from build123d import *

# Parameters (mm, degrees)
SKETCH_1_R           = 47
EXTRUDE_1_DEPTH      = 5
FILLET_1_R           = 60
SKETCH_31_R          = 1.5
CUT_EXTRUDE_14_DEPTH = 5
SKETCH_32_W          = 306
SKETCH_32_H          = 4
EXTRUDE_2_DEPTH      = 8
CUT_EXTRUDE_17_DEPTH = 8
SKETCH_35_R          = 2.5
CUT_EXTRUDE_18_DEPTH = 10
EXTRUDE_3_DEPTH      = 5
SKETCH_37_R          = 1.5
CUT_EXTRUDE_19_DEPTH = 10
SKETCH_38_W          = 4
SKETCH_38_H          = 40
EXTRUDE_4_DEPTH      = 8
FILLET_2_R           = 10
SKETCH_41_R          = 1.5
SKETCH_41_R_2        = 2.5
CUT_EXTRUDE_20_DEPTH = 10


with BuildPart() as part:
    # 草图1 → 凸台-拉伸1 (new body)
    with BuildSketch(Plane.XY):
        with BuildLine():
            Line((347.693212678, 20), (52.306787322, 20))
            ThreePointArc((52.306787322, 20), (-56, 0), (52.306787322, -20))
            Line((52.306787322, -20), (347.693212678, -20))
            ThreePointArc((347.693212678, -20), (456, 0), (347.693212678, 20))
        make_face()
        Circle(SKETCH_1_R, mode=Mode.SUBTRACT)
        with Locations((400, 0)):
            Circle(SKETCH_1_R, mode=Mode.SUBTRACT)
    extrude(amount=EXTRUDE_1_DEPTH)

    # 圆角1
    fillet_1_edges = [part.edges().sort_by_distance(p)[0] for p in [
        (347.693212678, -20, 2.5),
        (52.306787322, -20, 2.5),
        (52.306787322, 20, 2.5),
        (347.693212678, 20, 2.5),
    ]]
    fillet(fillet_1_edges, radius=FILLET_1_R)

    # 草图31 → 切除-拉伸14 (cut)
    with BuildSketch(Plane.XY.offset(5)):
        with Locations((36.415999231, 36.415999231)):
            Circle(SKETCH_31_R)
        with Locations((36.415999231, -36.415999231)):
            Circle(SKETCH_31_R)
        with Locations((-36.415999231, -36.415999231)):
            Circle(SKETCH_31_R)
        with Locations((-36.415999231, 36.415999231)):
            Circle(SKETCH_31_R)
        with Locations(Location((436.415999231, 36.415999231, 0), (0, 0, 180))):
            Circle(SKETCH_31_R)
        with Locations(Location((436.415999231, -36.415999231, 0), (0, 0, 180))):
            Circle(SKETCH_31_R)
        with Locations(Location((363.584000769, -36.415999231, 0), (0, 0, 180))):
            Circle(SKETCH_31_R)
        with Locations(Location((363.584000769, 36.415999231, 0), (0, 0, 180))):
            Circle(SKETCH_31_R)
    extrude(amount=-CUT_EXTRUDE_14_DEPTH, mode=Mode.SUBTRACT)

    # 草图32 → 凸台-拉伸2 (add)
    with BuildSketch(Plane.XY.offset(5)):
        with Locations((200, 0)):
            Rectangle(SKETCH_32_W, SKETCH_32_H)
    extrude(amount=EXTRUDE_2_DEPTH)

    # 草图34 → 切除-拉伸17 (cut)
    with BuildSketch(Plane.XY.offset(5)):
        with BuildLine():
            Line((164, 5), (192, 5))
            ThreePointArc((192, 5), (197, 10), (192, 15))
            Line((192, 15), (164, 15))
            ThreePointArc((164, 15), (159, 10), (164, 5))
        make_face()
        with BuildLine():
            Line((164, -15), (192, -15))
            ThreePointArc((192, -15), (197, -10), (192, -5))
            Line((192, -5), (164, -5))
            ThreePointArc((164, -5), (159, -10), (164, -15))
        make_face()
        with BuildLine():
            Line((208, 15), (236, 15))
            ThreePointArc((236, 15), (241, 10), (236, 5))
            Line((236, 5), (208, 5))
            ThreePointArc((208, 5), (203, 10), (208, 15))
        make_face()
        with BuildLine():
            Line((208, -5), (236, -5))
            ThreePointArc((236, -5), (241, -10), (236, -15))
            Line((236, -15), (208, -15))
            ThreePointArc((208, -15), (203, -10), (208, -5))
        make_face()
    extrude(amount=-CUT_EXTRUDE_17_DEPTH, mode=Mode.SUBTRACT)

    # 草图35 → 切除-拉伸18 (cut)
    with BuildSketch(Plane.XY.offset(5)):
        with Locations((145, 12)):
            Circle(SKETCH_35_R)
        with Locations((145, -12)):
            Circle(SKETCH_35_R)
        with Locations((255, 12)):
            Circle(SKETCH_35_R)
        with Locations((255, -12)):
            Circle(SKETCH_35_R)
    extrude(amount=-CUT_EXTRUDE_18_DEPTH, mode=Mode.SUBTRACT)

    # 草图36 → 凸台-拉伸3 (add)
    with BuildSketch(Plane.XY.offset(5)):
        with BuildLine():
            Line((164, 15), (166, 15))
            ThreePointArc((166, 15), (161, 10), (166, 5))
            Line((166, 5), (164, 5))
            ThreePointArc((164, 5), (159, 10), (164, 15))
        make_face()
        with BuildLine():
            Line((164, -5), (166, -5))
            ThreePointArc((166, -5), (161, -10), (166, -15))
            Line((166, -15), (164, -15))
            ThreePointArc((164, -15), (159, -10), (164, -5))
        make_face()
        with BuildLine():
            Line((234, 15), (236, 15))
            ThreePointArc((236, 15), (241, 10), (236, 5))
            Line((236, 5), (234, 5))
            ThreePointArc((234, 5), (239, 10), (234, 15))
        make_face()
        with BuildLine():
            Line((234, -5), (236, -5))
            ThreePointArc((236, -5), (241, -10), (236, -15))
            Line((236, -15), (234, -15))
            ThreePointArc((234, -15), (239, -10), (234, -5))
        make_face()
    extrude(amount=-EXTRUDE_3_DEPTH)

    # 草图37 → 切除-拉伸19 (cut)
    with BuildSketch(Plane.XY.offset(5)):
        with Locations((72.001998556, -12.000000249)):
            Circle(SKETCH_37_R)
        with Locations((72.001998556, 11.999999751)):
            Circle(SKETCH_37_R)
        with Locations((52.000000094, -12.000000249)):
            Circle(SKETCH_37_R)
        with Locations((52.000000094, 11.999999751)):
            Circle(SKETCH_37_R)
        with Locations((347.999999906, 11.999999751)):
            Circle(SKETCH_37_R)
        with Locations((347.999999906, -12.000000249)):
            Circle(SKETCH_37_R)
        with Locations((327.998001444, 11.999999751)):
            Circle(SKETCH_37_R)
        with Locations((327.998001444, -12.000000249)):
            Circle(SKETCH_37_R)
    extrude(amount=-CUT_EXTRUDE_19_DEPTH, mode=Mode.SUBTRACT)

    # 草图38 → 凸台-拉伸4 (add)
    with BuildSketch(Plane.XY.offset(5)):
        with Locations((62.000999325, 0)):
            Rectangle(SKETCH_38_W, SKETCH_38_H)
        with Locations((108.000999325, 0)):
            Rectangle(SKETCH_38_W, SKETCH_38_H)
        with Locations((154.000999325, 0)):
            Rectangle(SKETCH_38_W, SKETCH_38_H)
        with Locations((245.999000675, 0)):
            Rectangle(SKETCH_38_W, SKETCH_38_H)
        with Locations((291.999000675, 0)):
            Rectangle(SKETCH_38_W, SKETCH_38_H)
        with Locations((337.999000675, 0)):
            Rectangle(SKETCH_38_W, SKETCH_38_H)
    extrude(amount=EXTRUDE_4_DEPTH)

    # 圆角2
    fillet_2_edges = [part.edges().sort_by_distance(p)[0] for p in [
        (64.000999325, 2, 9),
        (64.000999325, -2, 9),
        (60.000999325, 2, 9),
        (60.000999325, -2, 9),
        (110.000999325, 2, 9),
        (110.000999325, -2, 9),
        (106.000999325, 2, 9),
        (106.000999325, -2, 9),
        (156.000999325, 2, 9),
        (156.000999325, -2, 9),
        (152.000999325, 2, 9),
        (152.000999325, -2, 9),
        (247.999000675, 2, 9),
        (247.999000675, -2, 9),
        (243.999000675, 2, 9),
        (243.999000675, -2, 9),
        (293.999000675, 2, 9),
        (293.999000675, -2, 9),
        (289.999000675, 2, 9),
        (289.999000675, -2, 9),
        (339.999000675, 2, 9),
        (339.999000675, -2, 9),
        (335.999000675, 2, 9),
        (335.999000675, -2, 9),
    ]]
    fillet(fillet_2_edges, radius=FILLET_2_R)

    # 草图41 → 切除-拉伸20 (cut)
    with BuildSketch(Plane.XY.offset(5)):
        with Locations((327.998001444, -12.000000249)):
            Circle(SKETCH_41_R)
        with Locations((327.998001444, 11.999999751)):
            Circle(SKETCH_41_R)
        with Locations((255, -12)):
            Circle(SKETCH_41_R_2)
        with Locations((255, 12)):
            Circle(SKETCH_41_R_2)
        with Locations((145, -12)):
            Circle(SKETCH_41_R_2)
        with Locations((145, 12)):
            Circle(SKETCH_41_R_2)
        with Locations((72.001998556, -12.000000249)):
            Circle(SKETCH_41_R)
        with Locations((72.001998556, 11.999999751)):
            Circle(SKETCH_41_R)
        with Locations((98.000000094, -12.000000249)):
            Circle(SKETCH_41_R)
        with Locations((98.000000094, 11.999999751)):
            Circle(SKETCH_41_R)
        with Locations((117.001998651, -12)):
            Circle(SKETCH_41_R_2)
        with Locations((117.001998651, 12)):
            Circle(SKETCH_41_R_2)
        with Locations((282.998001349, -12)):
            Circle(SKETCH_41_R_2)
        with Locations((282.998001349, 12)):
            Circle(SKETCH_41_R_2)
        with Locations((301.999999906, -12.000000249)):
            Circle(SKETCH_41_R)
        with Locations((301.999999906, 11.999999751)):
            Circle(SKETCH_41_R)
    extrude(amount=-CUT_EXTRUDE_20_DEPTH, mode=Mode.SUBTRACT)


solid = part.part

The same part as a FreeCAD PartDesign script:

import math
import FreeCAD as App
import Part
import Sketcher
from FreeCAD import Vector
Q = App.Units.Quantity


def edges_at(feature, points):
    """Names of the edges that pass closest to the given points."""
    edges = feature.Shape.Edges
    near = lambda p: min(range(len(edges)), key=lambda i: edges[i].distToShape(Part.Vertex(*p))[0])
    return sorted({f"Edge{near(p) + 1}" for p in points})

doc = App.newDocument("Part")
body = doc.addObject("PartDesign::Body", "Body")

sketch1 = doc.addObject("Sketcher::SketchObject", "Sketch")
body.addObject(sketch1)
sketch1.AttachmentSupport = (doc.XY_Plane, [""])
sketch1.MapMode = "FlatFace"
sketch1.addGeometry(Part.LineSegment(Vector(347.693213, 20, 0), Vector(52.306787, 20, 0)), False)
sketch1.addGeometry(Part.ArcOfCircle(Part.Circle(Vector(0, 0, 0), Vector(0, 0, 1), 56), math.radians(20.924832), math.radians(339.075168)), False)
sketch1.addGeometry(Part.LineSegment(Vector(52.306787, -20, 0), Vector(347.693213, -20, 0)), False)
sketch1.addGeometry(Part.ArcOfCircle(Part.Circle(Vector(400, 0, 0), Vector(0, 0, 1), 56), math.radians(-159.075168), math.radians(159.075168)), False)
sketch1.addGeometry(Part.Circle(Vector(0, 0, 0), Vector(0, 0, 1), 47), False)
sketch1.addGeometry(Part.Circle(Vector(400, 0, 0), Vector(0, 0, 1), 47), False)
sketch1.addConstraint(Sketcher.Constraint("Coincident", 0, 2, 1, 1))
sketch1.addConstraint(Sketcher.Constraint("Coincident", 1, 2, 2, 1))
sketch1.addConstraint(Sketcher.Constraint("Coincident", 2, 2, 3, 1))
sketch1.addConstraint(Sketcher.Constraint("Coincident", 3, 2, 0, 1))
sketch1.addConstraint(Sketcher.Constraint("Horizontal", 0))
sketch1.addConstraint(Sketcher.Constraint("Horizontal", 2))
sketch1.addConstraint(Sketcher.Constraint("Coincident", 1, 3, -1, 1))
sketch1.addConstraint(Sketcher.Constraint("Coincident", 4, 3, -1, 1))
sketch1.addConstraint(Sketcher.Constraint("Coincident", 5, 3, 3, 3))
sketch1.addConstraint(Sketcher.Constraint("Equal", 1, 3))
sketch1.addConstraint(Sketcher.Constraint("Equal", 4, 5))
sketch1.addConstraint(Sketcher.Constraint("Symmetric", 2, 2, 3, 2, -1))
sketch1.addConstraint(Sketcher.Constraint("Diameter", 4, Q("94 mm")))
sketch1.addConstraint(Sketcher.Constraint("Radius", 1, Q("56 mm")))
sketch1.addConstraint(Sketcher.Constraint("DistanceX", -1, 1, 3, 3, Q("400 mm")))
sketch1.addConstraint(Sketcher.Constraint("DistanceY", -1, 1, 0, 2, Q("20 mm")))
pad1 = doc.addObject("PartDesign::Pad", "Pad")
body.addObject(pad1)
pad1.Profile = sketch1
pad1.Length = 5
doc.recompute()

fillet = doc.addObject("PartDesign::Fillet", "Fillet")
body.addObject(fillet)
fillet.Base = (pad1, edges_at(pad1, [
    (347.693, -20, 2.5),
    (52.307, -20, 2.5),
    (52.307, 20, 2.5),
    (347.693, 20, 2.5),
]))
fillet.Radius = 60

sketch2 = doc.addObject("Sketcher::SketchObject", "Sketch001")
body.addObject(sketch2)
sketch2.AttachmentSupport = (doc.XY_Plane, [""])
sketch2.MapMode = "FlatFace"
sketch2.AttachmentOffset = App.Placement(Vector(0, 0, 5), App.Rotation())
sketch2.addGeometry(Part.Circle(Vector(36.415999, 36.415999, 0), Vector(0, 0, 1), 1.5), False)
sketch2.addGeometry(Part.Circle(Vector(36.415999, -36.415999, 0), Vector(0, 0, 1), 1.5), False)
sketch2.addGeometry(Part.Circle(Vector(-36.415999, -36.415999, 0), Vector(0, 0, 1), 1.5), False)
sketch2.addGeometry(Part.Circle(Vector(-36.415999, 36.415999, 0), Vector(0, 0, 1), 1.5), False)
sketch2.addGeometry(Part.Circle(Vector(436.415999, 36.415999, 0), Vector(0, 0, 1), 1.5), False)
sketch2.addGeometry(Part.Circle(Vector(436.415999, -36.415999, 0), Vector(0, 0, 1), 1.5), False)
sketch2.addGeometry(Part.Circle(Vector(363.584001, -36.415999, 0), Vector(0, 0, 1), 1.5), False)
sketch2.addGeometry(Part.Circle(Vector(363.584001, 36.415999, 0), Vector(0, 0, 1), 1.5), False)
sketch2.addConstraint(Sketcher.Constraint("Equal", 0, 1))
sketch2.addConstraint(Sketcher.Constraint("Equal", 1, 2))
sketch2.addConstraint(Sketcher.Constraint("Equal", 2, 3))
sketch2.addConstraint(Sketcher.Constraint("Equal", 3, 4))
sketch2.addConstraint(Sketcher.Constraint("Equal", 4, 5))
sketch2.addConstraint(Sketcher.Constraint("Equal", 5, 6))
sketch2.addConstraint(Sketcher.Constraint("Equal", 6, 7))
sketch2.addConstraint(Sketcher.Constraint("Symmetric", 0, 3, 2, 3, -1, 1))
sketch2.addConstraint(Sketcher.Constraint("Symmetric", 1, 3, 3, 3, -1, 1))
sketch2.addConstraint(Sketcher.Constraint("Symmetric", 1, 3, 2, 3, -2))
sketch2.addConstraint(Sketcher.Constraint("Symmetric", 4, 3, 5, 3, -1))
sketch2.addConstraint(Sketcher.Constraint("Symmetric", 6, 3, 7, 3, -1))
sketch2.addConstraint(Sketcher.Constraint("Horizontal", 3, 3, 4, 3))
sketch2.addConstraint(Sketcher.Constraint("Horizontal", 5, 3, 6, 3))
sketch2.addConstraint(Sketcher.Constraint("Diameter", 0, Q("3 mm")))
sketch2.addConstraint(Sketcher.Constraint("DistanceX", 0, 3, 4, 3, Q("400 mm")))
sketch2.addConstraint(Sketcher.Constraint("DistanceX", 2, 3, 6, 3, Q("400 mm")))
sketch2.addConstraint(Sketcher.Constraint("DistanceX", -1, 1, 0, 3, Q("36.415999 mm")))
sketch2.addConstraint(Sketcher.Constraint("DistanceY", -1, 1, 0, 3, Q("36.415999 mm")))
pocket1 = doc.addObject("PartDesign::Pocket", "Pocket")
body.addObject(pocket1)
pocket1.Profile = sketch2
pocket1.Length = 5

sketch3 = doc.addObject("Sketcher::SketchObject", "Sketch002")
body.addObject(sketch3)
sketch3.AttachmentSupport = (doc.XY_Plane, [""])
sketch3.MapMode = "FlatFace"
sketch3.AttachmentOffset = App.Placement(Vector(0, 0, 5), App.Rotation())
sketch3.addGeometry(Part.LineSegment(Vector(47, 2, 0), Vector(47, -2, 0)), False)
sketch3.addGeometry(Part.LineSegment(Vector(47, -2, 0), Vector(353, -2, 0)), False)
sketch3.addGeometry(Part.LineSegment(Vector(353, -2, 0), Vector(353, 2, 0)), False)
sketch3.addGeometry(Part.LineSegment(Vector(353, 2, 0), Vector(47, 2, 0)), False)
sketch3.addConstraint(Sketcher.Constraint("Coincident", 0, 2, 1, 1))
sketch3.addConstraint(Sketcher.Constraint("Coincident", 1, 2, 2, 1))
sketch3.addConstraint(Sketcher.Constraint("Coincident", 2, 2, 3, 1))
sketch3.addConstraint(Sketcher.Constraint("Coincident", 3, 2, 0, 1))
sketch3.addConstraint(Sketcher.Constraint("Vertical", 0))
sketch3.addConstraint(Sketcher.Constraint("Horizontal", 1))
sketch3.addConstraint(Sketcher.Constraint("Vertical", 2))
sketch3.addConstraint(Sketcher.Constraint("Horizontal", 3))
sketch3.addConstraint(Sketcher.Constraint("DistanceX", 1, 1, 1, 2, Q("306 mm")))
sketch3.addConstraint(Sketcher.Constraint("DistanceY", 0, 2, 0, 1, Q("4 mm")))
sketch3.addConstraint(Sketcher.Constraint("DistanceX", -1, 1, 0, 2, Q("47 mm")))
sketch3.addConstraint(Sketcher.Constraint("DistanceY", 0, 2, -1, 1, Q("2 mm")))
pad2 = doc.addObject("PartDesign::Pad", "Pad001")
body.addObject(pad2)
pad2.Profile = sketch3
pad2.Length = 8

sketch4 = doc.addObject("Sketcher::SketchObject", "Sketch003")
body.addObject(sketch4)
sketch4.AttachmentSupport = (doc.XY_Plane, [""])
sketch4.MapMode = "FlatFace"
sketch4.AttachmentOffset = App.Placement(Vector(0, 0, 5), App.Rotation())
sketch4.addGeometry(Part.LineSegment(Vector(164, 5, 0), Vector(192, 5, 0)), False)
sketch4.addGeometry(Part.ArcOfCircle(Part.Circle(Vector(192, 10, 0), Vector(0, 0, 1), 5), math.radians(-90), math.radians(90)), False)
sketch4.addGeometry(Part.LineSegment(Vector(192, 15, 0), Vector(164, 15, 0)), False)
sketch4.addGeometry(Part.ArcOfCircle(Part.Circle(Vector(164, 10, 0), Vector(0, 0, 1), 5), math.radians(90), math.radians(270)), False)
sketch4.addGeometry(Part.LineSegment(Vector(164, -15, 0), Vector(192, -15, 0)), False)
sketch4.addGeometry(Part.ArcOfCircle(Part.Circle(Vector(192, -10, 0), Vector(0, 0, 1), 5), math.radians(-90), math.radians(90)), False)
sketch4.addGeometry(Part.LineSegment(Vector(192, -5, 0), Vector(164, -5, 0)), False)
sketch4.addGeometry(Part.ArcOfCircle(Part.Circle(Vector(164, -10, 0), Vector(0, 0, 1), 5), math.radians(90), math.radians(270)), False)
sketch4.addGeometry(Part.LineSegment(Vector(236, 15, 0), Vector(208, 15, 0)), False)
sketch4.addGeometry(Part.ArcOfCircle(Part.Circle(Vector(208, 10, 0), Vector(0, 0, 1), 5), math.radians(90), math.radians(270)), False)
sketch4.addGeometry(Part.LineSegment(Vector(208, 5, 0), Vector(236, 5, 0)), False)
sketch4.addGeometry(Part.ArcOfCircle(Part.Circle(Vector(236, 10, 0), Vector(0, 0, 1), 5), math.radians(-90), math.radians(90)), False)
sketch4.addGeometry(Part.LineSegment(Vector(236, -5, 0), Vector(208, -5, 0)), False)
sketch4.addGeometry(Part.ArcOfCircle(Part.Circle(Vector(208, -10, 0), Vector(0, 0, 1), 5), math.radians(90), math.radians(270)), False)
sketch4.addGeometry(Part.LineSegment(Vector(208, -15, 0), Vector(236, -15, 0)), False)
sketch4.addGeometry(Part.ArcOfCircle(Part.Circle(Vector(236, -10, 0), Vector(0, 0, 1), 5), math.radians(-90), math.radians(90)), False)
sketch4.addConstraint(Sketcher.Constraint("Tangent", 0, 2, 1, 1))
sketch4.addConstraint(Sketcher.Constraint("Tangent", 1, 2, 2, 1))
sketch4.addConstraint(Sketcher.Constraint("Tangent", 2, 2, 3, 1))
sketch4.addConstraint(Sketcher.Constraint("Tangent", 3, 2, 0, 1))
sketch4.addConstraint(Sketcher.Constraint("Tangent", 4, 2, 5, 1))
sketch4.addConstraint(Sketcher.Constraint("Tangent", 5, 2, 6, 1))
sketch4.addConstraint(Sketcher.Constraint("Tangent", 6, 2, 7, 1))
sketch4.addConstraint(Sketcher.Constraint("Tangent", 7, 2, 4, 1))
sketch4.addConstraint(Sketcher.Constraint("Tangent", 8, 2, 9, 1))
sketch4.addConstraint(Sketcher.Constraint("Tangent", 9, 2, 10, 1))
sketch4.addConstraint(Sketcher.Constraint("Tangent", 10, 2, 11, 1))
sketch4.addConstraint(Sketcher.Constraint("Tangent", 11, 2, 8, 1))
sketch4.addConstraint(Sketcher.Constraint("Tangent", 12, 2, 13, 1))
sketch4.addConstraint(Sketcher.Constraint("Tangent", 13, 2, 14, 1))
sketch4.addConstraint(Sketcher.Constraint("Tangent", 14, 2, 15, 1))
sketch4.addConstraint(Sketcher.Constraint("Tangent", 15, 2, 12, 1))
sketch4.addConstraint(Sketcher.Constraint("Horizontal", 0))
sketch4.addConstraint(Sketcher.Constraint("Horizontal", 2))
sketch4.addConstraint(Sketcher.Constraint("Horizontal", 4))
sketch4.addConstraint(Sketcher.Constraint("Horizontal", 6))
sketch4.addConstraint(Sketcher.Constraint("Horizontal", 8))
sketch4.addConstraint(Sketcher.Constraint("Horizontal", 10))
sketch4.addConstraint(Sketcher.Constraint("Horizontal", 12))
sketch4.addConstraint(Sketcher.Constraint("Horizontal", 14))
sketch4.addConstraint(Sketcher.Constraint("Equal", 3, 5))
sketch4.addConstraint(Sketcher.Constraint("Equal", 7, 9))
sketch4.addConstraint(Sketcher.Constraint("Equal", 11, 13))
sketch4.addConstraint(Sketcher.Constraint("Symmetric", 1, 3, 5, 3, -1))
sketch4.addConstraint(Sketcher.Constraint("Symmetric", 9, 3, 13, 3, -1))
sketch4.addConstraint(Sketcher.Constraint("Horizontal", 3, 3, 9, 3))
sketch4.addConstraint(Sketcher.Constraint("Vertical", 3, 3, 7, 3))
sketch4.addConstraint(Sketcher.Constraint("Vertical", 11, 3, 15, 3))
sketch4.addConstraint(Sketcher.Constraint("Equal", 6, 8))
sketch4.addConstraint(Sketcher.Constraint("Radius", 1, Q("5 mm")))
sketch4.addConstraint(Sketcher.Constraint("DistanceX", 0, 1, 0, 2, Q("28 mm")))
sketch4.addConstraint(Sketcher.Constraint("DistanceX", -1, 1, 1, 3, Q("192 mm")))
sketch4.addConstraint(Sketcher.Constraint("DistanceY", -1, 1, 1, 3, Q("10 mm")))
sketch4.addConstraint(Sketcher.Constraint("DistanceX", -1, 1, 9, 3, Q("208 mm")))
pocket2 = doc.addObject("PartDesign::Pocket", "Pocket001")
body.addObject(pocket2)
pocket2.Profile = sketch4
pocket2.Length = 8

sketch5 = doc.addObject("Sketcher::SketchObject", "Sketch004")
body.addObject(sketch5)
sketch5.AttachmentSupport = (doc.XY_Plane, [""])
sketch5.MapMode = "FlatFace"
sketch5.AttachmentOffset = App.Placement(Vector(0, 0, 5), App.Rotation())
sketch5.addGeometry(Part.Circle(Vector(145, 12, 0), Vector(0, 0, 1), 2.5), False)
sketch5.addGeometry(Part.Circle(Vector(145, -12, 0), Vector(0, 0, 1), 2.5), False)
sketch5.addGeometry(Part.Circle(Vector(255, 12, 0), Vector(0, 0, 1), 2.5), False)
sketch5.addGeometry(Part.Circle(Vector(255, -12, 0), Vector(0, 0, 1), 2.5), False)
sketch5.addConstraint(Sketcher.Constraint("Equal", 0, 1))
sketch5.addConstraint(Sketcher.Constraint("Equal", 1, 2))
sketch5.addConstraint(Sketcher.Constraint("Equal", 2, 3))
sketch5.addConstraint(Sketcher.Constraint("Symmetric", 0, 3, 1, 3, -1))
sketch5.addConstraint(Sketcher.Constraint("Symmetric", 2, 3, 3, 3, -1))
sketch5.addConstraint(Sketcher.Constraint("Horizontal", 0, 3, 2, 3))
sketch5.addConstraint(Sketcher.Constraint("Diameter", 0, Q("5 mm")))
sketch5.addConstraint(Sketcher.Constraint("DistanceX", -1, 1, 0, 3, Q("145 mm")))
sketch5.addConstraint(Sketcher.Constraint("DistanceY", -1, 1, 0, 3, Q("12 mm")))
sketch5.addConstraint(Sketcher.Constraint("DistanceX", -1, 1, 2, 3, Q("255 mm")))
pocket3 = doc.addObject("PartDesign::Pocket", "Pocket002")
body.addObject(pocket3)
pocket3.Profile = sketch5
pocket3.Length = 10

sketch6 = doc.addObject("Sketcher::SketchObject", "Sketch005")
body.addObject(sketch6)
sketch6.AttachmentSupport = (doc.XY_Plane, [""])
sketch6.MapMode = "FlatFace"
sketch6.AttachmentOffset = App.Placement(Vector(0, 0, 5), App.Rotation())
sketch6.addGeometry(Part.LineSegment(Vector(166, 15, 0), Vector(164, 15, 0)), False)
sketch6.addGeometry(Part.ArcOfCircle(Part.Circle(Vector(164, 10, 0), Vector(0, 0, 1), 5), math.radians(90), math.radians(270)), False)
sketch6.addGeometry(Part.LineSegment(Vector(164, 5, 0), Vector(166, 5, 0)), False)
sketch6.addGeometry(Part.ArcOfCircle(Part.Circle(Vector(166, 10, 0), Vector(0, 0, 1), 5), math.radians(90), math.radians(270)), False)
sketch6.addGeometry(Part.LineSegment(Vector(166, -5, 0), Vector(164, -5, 0)), False)
sketch6.addGeometry(Part.ArcOfCircle(Part.Circle(Vector(164, -10, 0), Vector(0, 0, 1), 5), math.radians(90), math.radians(270)), False)
sketch6.addGeometry(Part.LineSegment(Vector(164, -15, 0), Vector(166, -15, 0)), False)
sketch6.addGeometry(Part.ArcOfCircle(Part.Circle(Vector(166, -10, 0), Vector(0, 0, 1), 5), math.radians(90), math.radians(270)), False)
sketch6.addGeometry(Part.LineSegment(Vector(236, 15, 0), Vector(234, 15, 0)), False)
sketch6.addGeometry(Part.ArcOfCircle(Part.Circle(Vector(234, 10, 0), Vector(0, 0, 1), 5), math.radians(-90), math.radians(90)), False)
sketch6.addGeometry(Part.LineSegment(Vector(234, 5, 0), Vector(236, 5, 0)), False)
sketch6.addGeometry(Part.ArcOfCircle(Part.Circle(Vector(236, 10, 0), Vector(0, 0, 1), 5), math.radians(-90), math.radians(90)), False)
sketch6.addGeometry(Part.LineSegment(Vector(236, -5, 0), Vector(234, -5, 0)), False)
sketch6.addGeometry(Part.ArcOfCircle(Part.Circle(Vector(234, -10, 0), Vector(0, 0, 1), 5), math.radians(-90), math.radians(90)), False)
sketch6.addGeometry(Part.LineSegment(Vector(234, -15, 0), Vector(236, -15, 0)), False)
sketch6.addGeometry(Part.ArcOfCircle(Part.Circle(Vector(236, -10, 0), Vector(0, 0, 1), 5), math.radians(-90), math.radians(90)), False)
sketch6.addConstraint(Sketcher.Constraint("Tangent", 0, 2, 1, 1))
sketch6.addConstraint(Sketcher.Constraint("Tangent", 1, 2, 2, 1))
sketch6.addConstraint(Sketcher.Constraint("Tangent", 2, 2, 3, 2))
sketch6.addConstraint(Sketcher.Constraint("Tangent", 3, 1, 0, 1))
sketch6.addConstraint(Sketcher.Constraint("Tangent", 4, 2, 5, 1))
sketch6.addConstraint(Sketcher.Constraint("Tangent", 5, 2, 6, 1))
sketch6.addConstraint(Sketcher.Constraint("Tangent", 6, 2, 7, 2))
sketch6.addConstraint(Sketcher.Constraint("Tangent", 7, 1, 4, 1))
sketch6.addConstraint(Sketcher.Constraint("Tangent", 8, 2, 9, 2))
sketch6.addConstraint(Sketcher.Constraint("Tangent", 9, 1, 10, 1))
sketch6.addConstraint(Sketcher.Constraint("Tangent", 10, 2, 11, 1))
sketch6.addConstraint(Sketcher.Constraint("Tangent", 11, 2, 8, 1))
sketch6.addConstraint(Sketcher.Constraint("Tangent", 12, 2, 13, 2))
sketch6.addConstraint(Sketcher.Constraint("Tangent", 13, 1, 14, 1))
sketch6.addConstraint(Sketcher.Constraint("Tangent", 14, 2, 15, 1))
sketch6.addConstraint(Sketcher.Constraint("Tangent", 15, 2, 12, 1))
sketch6.addConstraint(Sketcher.Constraint("Horizontal", 0))
sketch6.addConstraint(Sketcher.Constraint("Horizontal", 2))
sketch6.addConstraint(Sketcher.Constraint("Horizontal", 4))
sketch6.addConstraint(Sketcher.Constraint("Horizontal", 6))
sketch6.addConstraint(Sketcher.Constraint("Horizontal", 8))
sketch6.addConstraint(Sketcher.Constraint("Horizontal", 10))
sketch6.addConstraint(Sketcher.Constraint("Horizontal", 12))
sketch6.addConstraint(Sketcher.Constraint("Horizontal", 14))
sketch6.addConstraint(Sketcher.Constraint("Equal", 3, 5))
sketch6.addConstraint(Sketcher.Constraint("Equal", 7, 9))
sketch6.addConstraint(Sketcher.Constraint("Equal", 11, 13))
sketch6.addConstraint(Sketcher.Constraint("Symmetric", 1, 3, 5, 3, -1))
sketch6.addConstraint(Sketcher.Constraint("Symmetric", 9, 3, 13, 3, -1))
sketch6.addConstraint(Sketcher.Constraint("Horizontal", 3, 3, 9, 3))
sketch6.addConstraint(Sketcher.Constraint("Vertical", 3, 3, 7, 3))
sketch6.addConstraint(Sketcher.Constraint("Vertical", 11, 3, 15, 3))
sketch6.addConstraint(Sketcher.Constraint("Equal", 6, 8))
sketch6.addConstraint(Sketcher.Constraint("Radius", 1, Q("5 mm")))
sketch6.addConstraint(Sketcher.Constraint("DistanceX", 0, 2, 0, 1, Q("2 mm")))
sketch6.addConstraint(Sketcher.Constraint("DistanceX", -1, 1, 1, 3, Q("164 mm")))
sketch6.addConstraint(Sketcher.Constraint("DistanceY", -1, 1, 1, 3, Q("10 mm")))
sketch6.addConstraint(Sketcher.Constraint("DistanceX", -1, 1, 9, 3, Q("234 mm")))
pad3 = doc.addObject("PartDesign::Pad", "Pad002")
body.addObject(pad3)
pad3.Profile = sketch6
pad3.Length = 5
pad3.Reversed = True

sketch7 = doc.addObject("Sketcher::SketchObject", "Sketch006")
body.addObject(sketch7)
sketch7.AttachmentSupport = (doc.XY_Plane, [""])
sketch7.MapMode = "FlatFace"
sketch7.AttachmentOffset = App.Placement(Vector(0, 0, 5), App.Rotation())
sketch7.addGeometry(Part.Circle(Vector(72.001999, -12, 0), Vector(0, 0, 1), 1.5), False)
sketch7.addGeometry(Part.Circle(Vector(72.001999, 12, 0), Vector(0, 0, 1), 1.5), False)
sketch7.addGeometry(Part.Circle(Vector(52, -12, 0), Vector(0, 0, 1), 1.5), False)
sketch7.addGeometry(Part.Circle(Vector(52, 12, 0), Vector(0, 0, 1), 1.5), False)
sketch7.addGeometry(Part.Circle(Vector(348, 12, 0), Vector(0, 0, 1), 1.5), False)
sketch7.addGeometry(Part.Circle(Vector(348, -12, 0), Vector(0, 0, 1), 1.5), False)
sketch7.addGeometry(Part.Circle(Vector(327.998001, 12, 0), Vector(0, 0, 1), 1.5), False)
sketch7.addGeometry(Part.Circle(Vector(327.998001, -12, 0), Vector(0, 0, 1), 1.5), False)
sketch7.addConstraint(Sketcher.Constraint("Equal", 0, 1))
sketch7.addConstraint(Sketcher.Constraint("Equal", 1, 2))
sketch7.addConstraint(Sketcher.Constraint("Equal", 2, 3))
sketch7.addConstraint(Sketcher.Constraint("Equal", 3, 4))
sketch7.addConstraint(Sketcher.Constraint("Equal", 4, 5))
sketch7.addConstraint(Sketcher.Constraint("Equal", 5, 6))
sketch7.addConstraint(Sketcher.Constraint("Equal", 6, 7))
sketch7.addConstraint(Sketcher.Constraint("Symmetric", 0, 3, 1, 3, -1))
sketch7.addConstraint(Sketcher.Constraint("Symmetric", 2, 3, 3, 3, -1))
sketch7.addConstraint(Sketcher.Constraint("Symmetric", 4, 3, 5, 3, -1))
sketch7.addConstraint(Sketcher.Constraint("Symmetric", 6, 3, 7, 3, -1))
sketch7.addConstraint(Sketcher.Constraint("Horizontal", 0, 3, 2, 3))
sketch7.addConstraint(Sketcher.Constraint("Horizontal", 3, 3, 4, 3))
sketch7.addConstraint(Sketcher.Constraint("Horizontal", 4, 3, 6, 3))
sketch7.addConstraint(Sketcher.Constraint("Diameter", 0, Q("3 mm")))
sketch7.addConstraint(Sketcher.Constraint("DistanceY", 0, 3, -1, 1, Q("12 mm")))
sketch7.addConstraint(Sketcher.Constraint("DistanceX", -1, 1, 2, 3, Q("52 mm")))
sketch7.addConstraint(Sketcher.Constraint("DistanceX", -1, 1, 4, 3, Q("348 mm")))
sketch7.addConstraint(Sketcher.Constraint("DistanceX", -1, 1, 0, 3, Q("72.001999 mm")))
sketch7.addConstraint(Sketcher.Constraint("DistanceX", -1, 1, 6, 3, Q("327.998001 mm")))
pocket4 = doc.addObject("PartDesign::Pocket", "Pocket003")
body.addObject(pocket4)
pocket4.Profile = sketch7
pocket4.Length = 10

sketch8 = doc.addObject("Sketcher::SketchObject", "Sketch007")
body.addObject(sketch8)
sketch8.AttachmentSupport = (doc.XY_Plane, [""])
sketch8.MapMode = "FlatFace"
sketch8.AttachmentOffset = App.Placement(Vector(0, 0, 5), App.Rotation())
sketch8.addGeometry(Part.LineSegment(Vector(60.000999, 20, 0), Vector(60.000999, -20, 0)), False)
sketch8.addGeometry(Part.LineSegment(Vector(60.000999, -20, 0), Vector(64.000999, -20, 0)), False)
sketch8.addGeometry(Part.LineSegment(Vector(64.000999, -20, 0), Vector(64.000999, 20, 0)), False)
sketch8.addGeometry(Part.LineSegment(Vector(64.000999, 20, 0), Vector(60.000999, 20, 0)), False)
sketch8.addGeometry(Part.LineSegment(Vector(106.000999, 20, 0), Vector(106.000999, -20, 0)), False)
sketch8.addGeometry(Part.LineSegment(Vector(106.000999, -20, 0), Vector(110.000999, -20, 0)), False)
sketch8.addGeometry(Part.LineSegment(Vector(110.000999, -20, 0), Vector(110.000999, 20, 0)), False)
sketch8.addGeometry(Part.LineSegment(Vector(110.000999, 20, 0), Vector(106.000999, 20, 0)), False)
sketch8.addGeometry(Part.LineSegment(Vector(152.000999, 20, 0), Vector(152.000999, -20, 0)), False)
sketch8.addGeometry(Part.LineSegment(Vector(152.000999, -20, 0), Vector(156.000999, -20, 0)), False)
sketch8.addGeometry(Part.LineSegment(Vector(156.000999, -20, 0), Vector(156.000999, 20, 0)), False)
sketch8.addGeometry(Part.LineSegment(Vector(156.000999, 20, 0), Vector(152.000999, 20, 0)), False)
sketch8.addGeometry(Part.LineSegment(Vector(243.999001, 20, 0), Vector(243.999001, -20, 0)), False)
sketch8.addGeometry(Part.LineSegment(Vector(243.999001, -20, 0), Vector(247.999001, -20, 0)), False)
sketch8.addGeometry(Part.LineSegment(Vector(247.999001, -20, 0), Vector(247.999001, 20, 0)), False)
sketch8.addGeometry(Part.LineSegment(Vector(247.999001, 20, 0), Vector(243.999001, 20, 0)), False)
sketch8.addGeometry(Part.LineSegment(Vector(289.999001, 20, 0), Vector(289.999001, -20, 0)), False)
sketch8.addGeometry(Part.LineSegment(Vector(289.999001, -20, 0), Vector(293.999001, -20, 0)), False)
sketch8.addGeometry(Part.LineSegment(Vector(293.999001, -20, 0), Vector(293.999001, 20, 0)), False)
sketch8.addGeometry(Part.LineSegment(Vector(293.999001, 20, 0), Vector(289.999001, 20, 0)), False)
sketch8.addGeometry(Part.LineSegment(Vector(335.999001, 20, 0), Vector(335.999001, -20, 0)), False)
sketch8.addGeometry(Part.LineSegment(Vector(335.999001, -20, 0), Vector(339.999001, -20, 0)), False)
sketch8.addGeometry(Part.LineSegment(Vector(339.999001, -20, 0), Vector(339.999001, 20, 0)), False)
sketch8.addGeometry(Part.LineSegment(Vector(339.999001, 20, 0), Vector(335.999001, 20, 0)), False)
sketch8.addConstraint(Sketcher.Constraint("Coincident", 0, 2, 1, 1))
sketch8.addConstraint(Sketcher.Constraint("Coincident", 1, 2, 2, 1))
sketch8.addConstraint(Sketcher.Constraint("Coincident", 2, 2, 3, 1))
sketch8.addConstraint(Sketcher.Constraint("Coincident", 3, 2, 0, 1))
sketch8.addConstraint(Sketcher.Constraint("Coincident", 4, 2, 5, 1))
sketch8.addConstraint(Sketcher.Constraint("Coincident", 5, 2, 6, 1))
sketch8.addConstraint(Sketcher.Constraint("Coincident", 6, 2, 7, 1))
sketch8.addConstraint(Sketcher.Constraint("Coincident", 7, 2, 4, 1))
sketch8.addConstraint(Sketcher.Constraint("Coincident", 8, 2, 9, 1))
sketch8.addConstraint(Sketcher.Constraint("Coincident", 9, 2, 10, 1))
sketch8.addConstraint(Sketcher.Constraint("Coincident", 10, 2, 11, 1))
sketch8.addConstraint(Sketcher.Constraint("Coincident", 11, 2, 8, 1))
sketch8.addConstraint(Sketcher.Constraint("Coincident", 12, 2, 13, 1))
sketch8.addConstraint(Sketcher.Constraint("Coincident", 13, 2, 14, 1))
sketch8.addConstraint(Sketcher.Constraint("Coincident", 14, 2, 15, 1))
sketch8.addConstraint(Sketcher.Constraint("Coincident", 15, 2, 12, 1))
sketch8.addConstraint(Sketcher.Constraint("Coincident", 16, 2, 17, 1))
sketch8.addConstraint(Sketcher.Constraint("Coincident", 17, 2, 18, 1))
sketch8.addConstraint(Sketcher.Constraint("Coincident", 18, 2, 19, 1))
sketch8.addConstraint(Sketcher.Constraint("Coincident", 19, 2, 16, 1))
sketch8.addConstraint(Sketcher.Constraint("Coincident", 20, 2, 21, 1))
sketch8.addConstraint(Sketcher.Constraint("Coincident", 21, 2, 22, 1))
sketch8.addConstraint(Sketcher.Constraint("Coincident", 22, 2, 23, 1))
sketch8.addConstraint(Sketcher.Constraint("Coincident", 23, 2, 20, 1))
sketch8.addConstraint(Sketcher.Constraint("Vertical", 0))
sketch8.addConstraint(Sketcher.Constraint("Horizontal", 1))
sketch8.addConstraint(Sketcher.Constraint("Vertical", 2))
sketch8.addConstraint(Sketcher.Constraint("Horizontal", 3))
sketch8.addConstraint(Sketcher.Constraint("Vertical", 4))
sketch8.addConstraint(Sketcher.Constraint("Horizontal", 5))
sketch8.addConstraint(Sketcher.Constraint("Vertical", 6))
sketch8.addConstraint(Sketcher.Constraint("Horizontal", 7))
sketch8.addConstraint(Sketcher.Constraint("Vertical", 8))
sketch8.addConstraint(Sketcher.Constraint("Horizontal", 9))
sketch8.addConstraint(Sketcher.Constraint("Vertical", 10))
sketch8.addConstraint(Sketcher.Constraint("Horizontal", 11))
sketch8.addConstraint(Sketcher.Constraint("Vertical", 12))
sketch8.addConstraint(Sketcher.Constraint("Horizontal", 13))
sketch8.addConstraint(Sketcher.Constraint("Vertical", 14))
sketch8.addConstraint(Sketcher.Constraint("Horizontal", 15))
sketch8.addConstraint(Sketcher.Constraint("Vertical", 16))
sketch8.addConstraint(Sketcher.Constraint("Horizontal", 17))
sketch8.addConstraint(Sketcher.Constraint("Vertical", 18))
sketch8.addConstraint(Sketcher.Constraint("Horizontal", 19))
sketch8.addConstraint(Sketcher.Constraint("Vertical", 20))
sketch8.addConstraint(Sketcher.Constraint("Horizontal", 21))
sketch8.addConstraint(Sketcher.Constraint("Vertical", 22))
sketch8.addConstraint(Sketcher.Constraint("Horizontal", 23))
sketch8.addConstraint(Sketcher.Constraint("Horizontal", 1, 2, 4, 2))
sketch8.addConstraint(Sketcher.Constraint("Horizontal", 3, 2, 6, 2))
sketch8.addConstraint(Sketcher.Constraint("Horizontal", 5, 2, 8, 2))
sketch8.addConstraint(Sketcher.Constraint("Horizontal", 7, 2, 10, 2))
sketch8.addConstraint(Sketcher.Constraint("Horizontal", 9, 2, 12, 2))
sketch8.addConstraint(Sketcher.Constraint("Horizontal", 11, 2, 14, 2))
sketch8.addConstraint(Sketcher.Constraint("Horizontal", 13, 2, 16, 2))
sketch8.addConstraint(Sketcher.Constraint("Horizontal", 15, 2, 18, 2))
sketch8.addConstraint(Sketcher.Constraint("Horizontal", 17, 2, 20, 2))
sketch8.addConstraint(Sketcher.Constraint("Horizontal", 19, 2, 22, 2))
sketch8.addConstraint(Sketcher.Constraint("Equal", 3, 5))
sketch8.addConstraint(Sketcher.Constraint("Equal", 7, 9))
sketch8.addConstraint(Sketcher.Constraint("Equal", 11, 13))
sketch8.addConstraint(Sketcher.Constraint("Equal", 15, 17))
sketch8.addConstraint(Sketcher.Constraint("Equal", 19, 21))
sketch8.addConstraint(Sketcher.Constraint("DistanceX", 1, 1, 1, 2, Q("4 mm")))
sketch8.addConstraint(Sketcher.Constraint("DistanceY", 0, 2, 0, 1, Q("40 mm")))
sketch8.addConstraint(Sketcher.Constraint("DistanceY", 0, 2, -1, 1, Q("20 mm")))
sketch8.addConstraint(Sketcher.Constraint("DistanceX", 1, 2, 4, 2, Q("42 mm")))
sketch8.addConstraint(Sketcher.Constraint("DistanceX", 5, 2, 8, 2, Q("42 mm")))
sketch8.addConstraint(Sketcher.Constraint("DistanceX", 13, 2, 16, 2, Q("42 mm")))
sketch8.addConstraint(Sketcher.Constraint("DistanceX", 17, 2, 20, 2, Q("42 mm")))
sketch8.addConstraint(Sketcher.Constraint("DistanceX", -1, 1, 0, 2, Q("60.000999 mm")))
sketch8.addConstraint(Sketcher.Constraint("DistanceX", -1, 1, 12, 2, Q("243.999001 mm")))
pad4 = doc.addObject("PartDesign::Pad", "Pad003")
body.addObject(pad4)
pad4.Profile = sketch8
pad4.Length = 8
doc.recompute()

fillet2 = doc.addObject("PartDesign::Fillet", "Fillet001")
body.addObject(fillet2)
fillet2.Base = (pad4, edges_at(pad4, [
    (64.001, 2, 9),
    (64.001, -2, 9),
    (60.001, 2, 9),
    (60.001, -2, 9),
    (110.001, 2, 9),
    (110.001, -2, 9),
    (106.001, 2, 9),
    (106.001, -2, 9),
    (156.001, 2, 9),
    (156.001, -2, 9),
    (152.001, 2, 9),
    (152.001, -2, 9),
    (247.999, 2, 9),
    (247.999, -2, 9),
    (243.999, 2, 9),
    (243.999, -2, 9),
    (293.999, 2, 9),
    (293.999, -2, 9),
    (289.999, 2, 9),
    (289.999, -2, 9),
    (339.999, 2, 9),
    (339.999, -2, 9),
    (335.999, 2, 9),
    (335.999, -2, 9),
]))
fillet2.Radius = 10

sketch9 = doc.addObject("Sketcher::SketchObject", "Sketch008")
body.addObject(sketch9)
sketch9.AttachmentSupport = (doc.XY_Plane, [""])
sketch9.MapMode = "FlatFace"
sketch9.AttachmentOffset = App.Placement(Vector(0, 0, 5), App.Rotation())
sketch9.addGeometry(Part.Circle(Vector(327.998001, -12, 0), Vector(0, 0, 1), 1.5), False)
sketch9.addGeometry(Part.Circle(Vector(327.998001, 12, 0), Vector(0, 0, 1), 1.5), False)
sketch9.addGeometry(Part.Circle(Vector(255, -12, 0), Vector(0, 0, 1), 2.5), False)
sketch9.addGeometry(Part.Circle(Vector(255, 12, 0), Vector(0, 0, 1), 2.5), False)
sketch9.addGeometry(Part.Circle(Vector(145, -12, 0), Vector(0, 0, 1), 2.5), False)
sketch9.addGeometry(Part.Circle(Vector(145, 12, 0), Vector(0, 0, 1), 2.5), False)
sketch9.addGeometry(Part.Circle(Vector(72.001999, -12, 0), Vector(0, 0, 1), 1.5), False)
sketch9.addGeometry(Part.Circle(Vector(72.001999, 12, 0), Vector(0, 0, 1), 1.5), False)
sketch9.addGeometry(Part.Circle(Vector(98, -12, 0), Vector(0, 0, 1), 1.5), False)
sketch9.addGeometry(Part.Circle(Vector(98, 12, 0), Vector(0, 0, 1), 1.5), False)
sketch9.addGeometry(Part.Circle(Vector(117.001999, -12, 0), Vector(0, 0, 1), 2.5), False)
sketch9.addGeometry(Part.Circle(Vector(117.001999, 12, 0), Vector(0, 0, 1), 2.5), False)
sketch9.addGeometry(Part.Circle(Vector(282.998001, -12, 0), Vector(0, 0, 1), 2.5), False)
sketch9.addGeometry(Part.Circle(Vector(282.998001, 12, 0), Vector(0, 0, 1), 2.5), False)
sketch9.addGeometry(Part.Circle(Vector(302, -12, 0), Vector(0, 0, 1), 1.5), False)
sketch9.addGeometry(Part.Circle(Vector(302, 12, 0), Vector(0, 0, 1), 1.5), False)
sketch9.addConstraint(Sketcher.Constraint("Equal", 0, 1))
sketch9.addConstraint(Sketcher.Constraint("Equal", 2, 3))
sketch9.addConstraint(Sketcher.Constraint("Equal", 3, 4))
sketch9.addConstraint(Sketcher.Constraint("Equal", 4, 5))
sketch9.addConstraint(Sketcher.Constraint("Equal", 1, 6))
sketch9.addConstraint(Sketcher.Constraint("Equal", 6, 7))
sketch9.addConstraint(Sketcher.Constraint("Equal", 7, 8))
sketch9.addConstraint(Sketcher.Constraint("Equal", 8, 9))
sketch9.addConstraint(Sketcher.Constraint("Equal", 5, 10))
sketch9.addConstraint(Sketcher.Constraint("Equal", 10, 11))
sketch9.addConstraint(Sketcher.Constraint("Equal", 11, 12))
sketch9.addConstraint(Sketcher.Constraint("Equal", 12, 13))
sketch9.addConstraint(Sketcher.Constraint("Equal", 9, 14))
sketch9.addConstraint(Sketcher.Constraint("Equal", 14, 15))
sketch9.addConstraint(Sketcher.Constraint("Symmetric", 0, 3, 1, 3, -1))
sketch9.addConstraint(Sketcher.Constraint("Symmetric", 2, 3, 3, 3, -1))
sketch9.addConstraint(Sketcher.Constraint("Symmetric", 4, 3, 5, 3, -1))
sketch9.addConstraint(Sketcher.Constraint("Symmetric", 6, 3, 7, 3, -1))
sketch9.addConstraint(Sketcher.Constraint("Symmetric", 8, 3, 9, 3, -1))
sketch9.addConstraint(Sketcher.Constraint("Symmetric", 10, 3, 11, 3, -1))
sketch9.addConstraint(Sketcher.Constraint("Symmetric", 12, 3, 13, 3, -1))
sketch9.addConstraint(Sketcher.Constraint("Symmetric", 14, 3, 15, 3, -1))
sketch9.addConstraint(Sketcher.Constraint("Horizontal", 0, 3, 2, 3))
sketch9.addConstraint(Sketcher.Constraint("Horizontal", 2, 3, 4, 3))
sketch9.addConstraint(Sketcher.Constraint("Horizontal", 4, 3, 6, 3))
sketch9.addConstraint(Sketcher.Constraint("Horizontal", 6, 3, 8, 3))
sketch9.addConstraint(Sketcher.Constraint("Horizontal", 8, 3, 10, 3))
sketch9.addConstraint(Sketcher.Constraint("Horizontal", 10, 3, 12, 3))
sketch9.addConstraint(Sketcher.Constraint("Horizontal", 12, 3, 14, 3))
sketch9.addConstraint(Sketcher.Constraint("Diameter", 0, Q("3 mm")))
sketch9.addConstraint(Sketcher.Constraint("Diameter", 2, Q("5 mm")))
sketch9.addConstraint(Sketcher.Constraint("DistanceY", 0, 3, -1, 1, Q("12 mm")))
sketch9.addConstraint(Sketcher.Constraint("DistanceX", -1, 1, 2, 3, Q("255 mm")))
sketch9.addConstraint(Sketcher.Constraint("DistanceX", -1, 1, 4, 3, Q("145 mm")))
sketch9.addConstraint(Sketcher.Constraint("DistanceX", -1, 1, 8, 3, Q("98 mm")))
sketch9.addConstraint(Sketcher.Constraint("DistanceX", -1, 1, 14, 3, Q("302 mm")))
sketch9.addConstraint(Sketcher.Constraint("DistanceX", 6, 3, 10, 3, Q("45 mm")))
sketch9.addConstraint(Sketcher.Constraint("DistanceX", 12, 3, 0, 3, Q("45 mm")))
sketch9.addConstraint(Sketcher.Constraint("DistanceX", -1, 1, 0, 3, Q("327.998001 mm")))
sketch9.addConstraint(Sketcher.Constraint("DistanceX", -1, 1, 6, 3, Q("72.001999 mm")))
pocket5 = doc.addObject("PartDesign::Pocket", "Pocket004")
body.addObject(pocket5)
pocket5.Profile = sketch9
pocket5.Length = 10

doc.recompute()
